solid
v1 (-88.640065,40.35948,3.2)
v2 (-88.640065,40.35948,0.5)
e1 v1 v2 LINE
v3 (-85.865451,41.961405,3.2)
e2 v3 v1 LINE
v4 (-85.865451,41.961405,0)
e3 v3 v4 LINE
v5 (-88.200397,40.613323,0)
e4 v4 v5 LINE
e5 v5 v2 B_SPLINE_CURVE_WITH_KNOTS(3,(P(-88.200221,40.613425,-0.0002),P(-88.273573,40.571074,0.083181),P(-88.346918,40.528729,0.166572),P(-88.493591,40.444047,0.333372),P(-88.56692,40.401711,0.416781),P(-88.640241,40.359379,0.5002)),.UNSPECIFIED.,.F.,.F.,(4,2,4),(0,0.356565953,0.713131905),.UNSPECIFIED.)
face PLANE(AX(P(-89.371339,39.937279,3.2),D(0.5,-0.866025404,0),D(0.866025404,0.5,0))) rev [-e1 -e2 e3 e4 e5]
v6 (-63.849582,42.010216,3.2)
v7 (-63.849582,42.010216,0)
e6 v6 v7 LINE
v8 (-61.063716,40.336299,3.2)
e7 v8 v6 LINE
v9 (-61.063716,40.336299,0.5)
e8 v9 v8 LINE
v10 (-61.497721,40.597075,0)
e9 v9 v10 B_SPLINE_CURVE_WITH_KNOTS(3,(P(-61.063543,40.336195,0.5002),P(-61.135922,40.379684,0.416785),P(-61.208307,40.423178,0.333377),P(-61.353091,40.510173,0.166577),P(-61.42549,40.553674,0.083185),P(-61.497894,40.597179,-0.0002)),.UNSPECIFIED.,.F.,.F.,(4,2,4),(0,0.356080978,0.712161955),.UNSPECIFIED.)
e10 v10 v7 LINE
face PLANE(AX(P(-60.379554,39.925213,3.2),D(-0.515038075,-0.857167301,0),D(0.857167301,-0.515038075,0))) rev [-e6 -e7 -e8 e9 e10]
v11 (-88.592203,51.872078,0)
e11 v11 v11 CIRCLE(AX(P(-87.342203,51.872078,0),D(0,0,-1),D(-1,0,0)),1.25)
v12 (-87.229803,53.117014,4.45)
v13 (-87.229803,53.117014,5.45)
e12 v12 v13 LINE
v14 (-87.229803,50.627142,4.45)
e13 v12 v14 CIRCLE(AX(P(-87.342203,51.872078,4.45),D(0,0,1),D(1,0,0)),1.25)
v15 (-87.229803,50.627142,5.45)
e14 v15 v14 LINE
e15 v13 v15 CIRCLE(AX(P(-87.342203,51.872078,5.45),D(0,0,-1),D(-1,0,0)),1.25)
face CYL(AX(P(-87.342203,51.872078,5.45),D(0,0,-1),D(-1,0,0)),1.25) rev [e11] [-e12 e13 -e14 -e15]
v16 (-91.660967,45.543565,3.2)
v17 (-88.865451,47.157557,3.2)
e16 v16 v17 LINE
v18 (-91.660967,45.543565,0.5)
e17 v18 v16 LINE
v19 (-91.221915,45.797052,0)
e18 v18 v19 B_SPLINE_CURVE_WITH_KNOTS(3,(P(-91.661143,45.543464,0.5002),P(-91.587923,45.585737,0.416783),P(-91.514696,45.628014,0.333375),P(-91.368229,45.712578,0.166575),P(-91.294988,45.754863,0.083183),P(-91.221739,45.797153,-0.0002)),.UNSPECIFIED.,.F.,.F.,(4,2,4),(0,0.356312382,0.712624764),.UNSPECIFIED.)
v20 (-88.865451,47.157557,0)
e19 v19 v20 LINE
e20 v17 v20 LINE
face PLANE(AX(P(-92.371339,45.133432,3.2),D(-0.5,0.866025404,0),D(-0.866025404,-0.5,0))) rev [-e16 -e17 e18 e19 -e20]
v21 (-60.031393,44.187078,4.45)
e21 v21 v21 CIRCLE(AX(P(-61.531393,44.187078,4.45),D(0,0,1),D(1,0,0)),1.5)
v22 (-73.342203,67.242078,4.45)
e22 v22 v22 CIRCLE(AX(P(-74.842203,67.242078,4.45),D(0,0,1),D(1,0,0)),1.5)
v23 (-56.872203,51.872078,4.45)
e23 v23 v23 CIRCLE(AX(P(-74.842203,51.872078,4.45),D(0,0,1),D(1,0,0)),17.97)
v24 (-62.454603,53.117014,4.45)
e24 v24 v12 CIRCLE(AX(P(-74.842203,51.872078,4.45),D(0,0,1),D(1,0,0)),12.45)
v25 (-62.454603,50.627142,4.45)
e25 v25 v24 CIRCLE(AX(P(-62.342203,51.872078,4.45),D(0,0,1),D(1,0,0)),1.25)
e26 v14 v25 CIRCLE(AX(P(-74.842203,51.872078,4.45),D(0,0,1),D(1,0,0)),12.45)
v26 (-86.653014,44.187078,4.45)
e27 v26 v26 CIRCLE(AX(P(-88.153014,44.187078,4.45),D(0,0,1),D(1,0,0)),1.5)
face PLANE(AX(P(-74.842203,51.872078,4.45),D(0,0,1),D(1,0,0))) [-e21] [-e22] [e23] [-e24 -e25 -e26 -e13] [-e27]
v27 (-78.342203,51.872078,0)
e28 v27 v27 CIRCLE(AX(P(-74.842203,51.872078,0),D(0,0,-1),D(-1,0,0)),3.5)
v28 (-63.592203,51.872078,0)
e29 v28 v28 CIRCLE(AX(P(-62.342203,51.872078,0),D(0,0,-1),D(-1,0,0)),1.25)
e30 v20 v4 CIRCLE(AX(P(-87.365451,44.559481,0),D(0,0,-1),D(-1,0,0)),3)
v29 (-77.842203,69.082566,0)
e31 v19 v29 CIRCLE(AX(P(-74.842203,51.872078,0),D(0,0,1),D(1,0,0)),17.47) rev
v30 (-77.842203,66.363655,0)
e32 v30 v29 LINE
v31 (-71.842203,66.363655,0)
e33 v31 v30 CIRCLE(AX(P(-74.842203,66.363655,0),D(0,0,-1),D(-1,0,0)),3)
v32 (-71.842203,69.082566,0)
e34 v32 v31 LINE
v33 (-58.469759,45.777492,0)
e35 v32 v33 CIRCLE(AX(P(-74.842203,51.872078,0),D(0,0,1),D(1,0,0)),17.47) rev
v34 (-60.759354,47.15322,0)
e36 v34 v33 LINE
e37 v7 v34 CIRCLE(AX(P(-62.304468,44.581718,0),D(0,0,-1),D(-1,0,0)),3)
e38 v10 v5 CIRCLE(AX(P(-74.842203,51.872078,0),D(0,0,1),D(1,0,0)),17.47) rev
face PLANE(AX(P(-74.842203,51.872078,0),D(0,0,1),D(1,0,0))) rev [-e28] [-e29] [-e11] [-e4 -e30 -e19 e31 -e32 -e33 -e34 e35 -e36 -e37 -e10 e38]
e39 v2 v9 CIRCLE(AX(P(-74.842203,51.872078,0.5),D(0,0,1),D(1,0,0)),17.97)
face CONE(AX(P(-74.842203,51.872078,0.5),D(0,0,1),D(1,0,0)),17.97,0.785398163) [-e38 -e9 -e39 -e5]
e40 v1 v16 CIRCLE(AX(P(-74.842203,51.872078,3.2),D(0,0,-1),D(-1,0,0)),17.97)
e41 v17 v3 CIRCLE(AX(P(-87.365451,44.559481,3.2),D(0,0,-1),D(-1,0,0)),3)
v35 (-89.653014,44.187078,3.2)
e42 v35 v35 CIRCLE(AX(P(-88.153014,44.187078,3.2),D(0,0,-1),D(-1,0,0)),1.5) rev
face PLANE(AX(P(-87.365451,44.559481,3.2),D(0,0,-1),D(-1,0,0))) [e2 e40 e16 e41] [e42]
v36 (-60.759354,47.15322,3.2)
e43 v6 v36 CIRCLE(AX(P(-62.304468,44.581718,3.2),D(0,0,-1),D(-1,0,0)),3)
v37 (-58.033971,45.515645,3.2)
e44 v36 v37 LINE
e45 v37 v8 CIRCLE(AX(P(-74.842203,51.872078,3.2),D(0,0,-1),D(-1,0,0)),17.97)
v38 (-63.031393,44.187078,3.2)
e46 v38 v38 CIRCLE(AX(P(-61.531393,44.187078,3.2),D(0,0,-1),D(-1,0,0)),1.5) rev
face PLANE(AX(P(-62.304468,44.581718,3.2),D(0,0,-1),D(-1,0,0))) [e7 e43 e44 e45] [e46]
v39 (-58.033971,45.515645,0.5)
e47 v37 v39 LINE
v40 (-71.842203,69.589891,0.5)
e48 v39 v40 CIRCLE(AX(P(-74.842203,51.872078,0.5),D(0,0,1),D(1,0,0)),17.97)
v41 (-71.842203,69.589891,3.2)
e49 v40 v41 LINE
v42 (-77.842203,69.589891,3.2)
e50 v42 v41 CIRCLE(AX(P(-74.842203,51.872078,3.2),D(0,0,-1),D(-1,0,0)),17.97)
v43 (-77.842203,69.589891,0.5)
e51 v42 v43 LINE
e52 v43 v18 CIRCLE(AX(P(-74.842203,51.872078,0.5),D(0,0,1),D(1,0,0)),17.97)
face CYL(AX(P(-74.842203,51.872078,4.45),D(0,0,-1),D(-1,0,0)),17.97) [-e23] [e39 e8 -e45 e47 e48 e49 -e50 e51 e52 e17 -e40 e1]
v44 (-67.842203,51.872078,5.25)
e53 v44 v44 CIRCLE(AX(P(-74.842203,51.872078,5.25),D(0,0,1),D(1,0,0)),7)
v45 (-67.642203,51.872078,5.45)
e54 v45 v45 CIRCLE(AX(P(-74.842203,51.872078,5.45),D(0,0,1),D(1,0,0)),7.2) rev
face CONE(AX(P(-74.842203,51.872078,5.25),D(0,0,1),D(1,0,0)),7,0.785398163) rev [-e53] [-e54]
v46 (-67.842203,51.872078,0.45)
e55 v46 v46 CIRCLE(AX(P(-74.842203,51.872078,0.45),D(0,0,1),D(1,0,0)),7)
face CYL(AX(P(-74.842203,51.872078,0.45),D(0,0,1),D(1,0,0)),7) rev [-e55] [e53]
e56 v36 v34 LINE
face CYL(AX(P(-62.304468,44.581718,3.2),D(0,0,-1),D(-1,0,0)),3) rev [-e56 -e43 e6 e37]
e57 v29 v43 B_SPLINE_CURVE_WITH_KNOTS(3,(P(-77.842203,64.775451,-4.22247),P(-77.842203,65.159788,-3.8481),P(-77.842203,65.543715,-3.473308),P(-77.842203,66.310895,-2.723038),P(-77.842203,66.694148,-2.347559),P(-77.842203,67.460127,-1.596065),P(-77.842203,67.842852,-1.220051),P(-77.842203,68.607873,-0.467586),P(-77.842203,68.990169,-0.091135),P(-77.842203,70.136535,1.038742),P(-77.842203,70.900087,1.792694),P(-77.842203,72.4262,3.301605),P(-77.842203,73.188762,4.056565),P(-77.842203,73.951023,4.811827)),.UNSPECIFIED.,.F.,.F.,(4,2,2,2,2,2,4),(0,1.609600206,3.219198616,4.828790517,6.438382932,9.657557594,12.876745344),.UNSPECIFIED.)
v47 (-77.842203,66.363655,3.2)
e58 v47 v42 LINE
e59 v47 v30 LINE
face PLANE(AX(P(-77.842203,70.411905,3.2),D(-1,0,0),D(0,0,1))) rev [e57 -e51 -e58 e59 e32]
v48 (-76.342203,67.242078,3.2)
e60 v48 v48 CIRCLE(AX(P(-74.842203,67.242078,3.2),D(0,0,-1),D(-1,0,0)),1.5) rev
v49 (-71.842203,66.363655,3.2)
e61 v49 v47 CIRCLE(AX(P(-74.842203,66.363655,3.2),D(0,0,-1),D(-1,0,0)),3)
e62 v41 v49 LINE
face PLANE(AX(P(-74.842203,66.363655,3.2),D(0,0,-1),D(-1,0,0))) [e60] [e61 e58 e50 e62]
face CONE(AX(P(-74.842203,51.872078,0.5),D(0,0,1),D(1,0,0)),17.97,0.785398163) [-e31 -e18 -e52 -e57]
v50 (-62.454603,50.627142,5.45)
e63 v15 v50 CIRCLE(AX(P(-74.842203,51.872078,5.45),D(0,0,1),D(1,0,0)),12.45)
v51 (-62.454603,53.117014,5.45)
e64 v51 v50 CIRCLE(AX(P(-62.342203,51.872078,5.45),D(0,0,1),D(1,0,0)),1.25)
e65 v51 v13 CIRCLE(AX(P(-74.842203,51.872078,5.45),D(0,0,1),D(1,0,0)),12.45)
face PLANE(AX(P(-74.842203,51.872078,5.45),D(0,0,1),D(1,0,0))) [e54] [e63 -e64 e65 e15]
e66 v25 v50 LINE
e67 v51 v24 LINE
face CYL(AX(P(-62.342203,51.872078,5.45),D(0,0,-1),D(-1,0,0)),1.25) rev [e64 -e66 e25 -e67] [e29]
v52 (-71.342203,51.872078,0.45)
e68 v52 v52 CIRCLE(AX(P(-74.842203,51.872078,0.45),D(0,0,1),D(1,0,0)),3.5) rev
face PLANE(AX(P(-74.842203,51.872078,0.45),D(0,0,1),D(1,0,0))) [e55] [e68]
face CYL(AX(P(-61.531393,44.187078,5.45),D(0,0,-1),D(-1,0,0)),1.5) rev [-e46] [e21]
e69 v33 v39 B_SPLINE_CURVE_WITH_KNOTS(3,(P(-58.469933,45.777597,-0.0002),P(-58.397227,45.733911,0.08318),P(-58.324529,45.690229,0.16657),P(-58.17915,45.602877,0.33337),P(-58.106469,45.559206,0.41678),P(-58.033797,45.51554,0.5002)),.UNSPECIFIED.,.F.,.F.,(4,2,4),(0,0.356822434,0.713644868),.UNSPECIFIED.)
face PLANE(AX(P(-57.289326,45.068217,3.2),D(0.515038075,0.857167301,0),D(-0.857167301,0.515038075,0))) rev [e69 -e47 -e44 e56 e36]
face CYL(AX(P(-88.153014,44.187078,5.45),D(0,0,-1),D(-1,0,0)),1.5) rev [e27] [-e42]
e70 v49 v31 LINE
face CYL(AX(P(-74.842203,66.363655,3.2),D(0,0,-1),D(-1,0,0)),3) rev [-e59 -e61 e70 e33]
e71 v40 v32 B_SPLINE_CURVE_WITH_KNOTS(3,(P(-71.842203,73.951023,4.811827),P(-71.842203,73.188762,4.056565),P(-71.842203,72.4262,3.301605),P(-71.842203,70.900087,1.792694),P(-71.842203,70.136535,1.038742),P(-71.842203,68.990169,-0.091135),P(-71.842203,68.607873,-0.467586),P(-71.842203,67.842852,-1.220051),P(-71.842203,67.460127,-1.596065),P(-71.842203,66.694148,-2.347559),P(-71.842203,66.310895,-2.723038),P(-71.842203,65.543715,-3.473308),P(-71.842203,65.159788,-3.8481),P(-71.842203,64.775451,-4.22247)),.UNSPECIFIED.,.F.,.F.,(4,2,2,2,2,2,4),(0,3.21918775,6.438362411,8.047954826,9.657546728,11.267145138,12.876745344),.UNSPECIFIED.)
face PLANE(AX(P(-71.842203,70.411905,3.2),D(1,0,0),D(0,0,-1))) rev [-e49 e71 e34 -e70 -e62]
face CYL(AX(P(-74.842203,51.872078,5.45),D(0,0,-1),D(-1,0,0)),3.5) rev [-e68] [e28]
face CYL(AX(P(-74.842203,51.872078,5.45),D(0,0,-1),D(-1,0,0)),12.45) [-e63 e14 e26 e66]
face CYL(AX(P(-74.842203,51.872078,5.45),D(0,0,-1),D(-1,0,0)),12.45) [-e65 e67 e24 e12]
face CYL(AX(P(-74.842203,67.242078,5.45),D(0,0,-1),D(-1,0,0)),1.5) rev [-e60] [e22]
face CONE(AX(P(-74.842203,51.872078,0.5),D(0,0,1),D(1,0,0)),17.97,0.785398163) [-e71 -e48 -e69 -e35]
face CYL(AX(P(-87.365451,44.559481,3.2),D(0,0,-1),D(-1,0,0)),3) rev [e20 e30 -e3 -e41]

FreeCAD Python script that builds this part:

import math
import FreeCAD as App
import Part
import Sketcher

V = App.Vector
Q = App.Units.Quantity


def edges_at(feature, points):
    """Names of the edges that pass closest to the given points."""
    edges = feature.Shape.Edges
    near = lambda p: min(range(len(edges)), key=lambda i: edges[i].distToShape(Part.Vertex(*p))[0])
    return sorted({f"Edge{near(p) + 1}" for p in points})

doc = App.newDocument("Part")
body = doc.addObject("PartDesign::Body", "Body")

# Sketch on XY plane
sketch1 = doc.addObject("Sketcher::SketchObject", "Sketch")
body.addObject(sketch1)
sketch1.AttachmentSupport = (doc.XY_Plane, [""])
sketch1.MapMode = "FlatFace"
sketch1.addGeometry(Part.Circle(V(-75, 52, 0), V(0, 0, 1), 18), False)
sketch1.addConstraint([
    Sketcher.Constraint("Diameter", 0, 35.94),
    Sketcher.Constraint("DistanceX", 0, 3, -1, 1, 74.842203),
    Sketcher.Constraint("DistanceY", -1, 1, 0, 3, 51.872078),
])
pad1 = doc.addObject("PartDesign::Pad", "Pad")
body.addObject(pad1)
pad1.Profile = sketch1
pad1.Length = 4.45

# Sketch on XY plane
sketch2 = doc.addObject("Sketcher::SketchObject", "Sketch001")
body.addObject(sketch2)
sketch2.AttachmentSupport = (doc.XY_Plane, [""])
sketch2.MapMode = "FlatFace"
sketch2.AttachmentOffset = App.Placement(V(0, 0, 4.45), App.Rotation())
sketch2.addGeometry(Part.Circle(V(-75, 52, 0), V(0, 0, 1), 12), False)
sketch2.addConstraint([
    Sketcher.Constraint("Diameter", 0, 24.9),
    Sketcher.Constraint("DistanceX", 0, 3, -1, 1, 74.842203),
    Sketcher.Constraint("DistanceY", -1, 1, 0, 3, 51.872078),
])
pad2 = doc.addObject("PartDesign::Pad", "Pad001")
body.addObject(pad2)
pad2.Profile = sketch2
pad2.Length = 1
doc.recompute()

chamfer = doc.addObject("PartDesign::Chamfer", "Chamfer")
body.addObject(chamfer)
chamfer.Base = (pad2, edges_at(pad2, [(-92.812, 51.872, 0)]))
chamfer.Size = 0.5

# Sketch on XY plane
sketch3 = doc.addObject("Sketcher::SketchObject", "Sketch002")
body.addObject(sketch3)
sketch3.AttachmentSupport = (doc.XY_Plane, [""])
sketch3.MapMode = "FlatFace"
sketch3.addGeometry([
    Part.Circle(V(-74.8, 67.2, 0), V(0, 0, 1), 1.5),
    Part.Circle(V(-61.5, 44.2, 0), V(0, 0, 1), 1.5),
    Part.Circle(V(-88.2, 44.2, 0), V(0, 0, 1), 1.5),
], False)
sketch3.addConstraint([
    Sketcher.Constraint("Equal", 0, 1),
    Sketcher.Constraint("Equal", 1, 2),
    Sketcher.Constraint("Horizontal", 1, 3, 2, 3),
    Sketcher.Constraint("Diameter", 0, 3.0),
    Sketcher.Constraint("DistanceY", 1, 3, 0, 3, 23.055),
    Sketcher.Constraint("DistanceX", 0, 3, 1, 3, 13.31081),
    Sketcher.Constraint("DistanceX", 2, 3, 1, 3, 26.621621),
    Sketcher.Constraint("DistanceX", 0, 3, -1, 1, 74.842203),
    Sketcher.Constraint("DistanceY", -1, 1, 0, 3, 67.242078),
])
pocket1 = doc.addObject("PartDesign::Pocket", "Pocket")
body.addObject(pocket1)
pocket1.Profile = sketch3
pocket1.Type = "ThroughAll"
pocket1.Reversed = True

# Sketch on XY plane
sketch4 = doc.addObject("Sketcher::SketchObject", "Sketch003")
body.addObject(sketch4)
sketch4.AttachmentSupport = (doc.XY_Plane, [""])
sketch4.MapMode = "FlatFace"
sketch4.addGeometry(Part.Circle(V(-74.8, 51.9, 0), V(0, 0, 1), 3.5), False)
sketch4.addConstraint([
    Sketcher.Constraint("Diameter", 0, 7.0),
    Sketcher.Constraint("DistanceX", 0, 3, -1, 1, 74.842203),
    Sketcher.Constraint("DistanceY", -1, 1, 0, 3, 51.872078),
])
pocket2 = doc.addObject("PartDesign::Pocket", "Pocket001")
body.addObject(pocket2)
pocket2.Profile = sketch4
pocket2.Type = "ThroughAll"
pocket2.Reversed = True

# Sketch on XY plane
sketch5 = doc.addObject("Sketcher::SketchObject", "Sketch004")
body.addObject(sketch5)
sketch5.AttachmentSupport = (doc.XY_Plane, [""])
sketch5.MapMode = "FlatFace"
sketch5.AttachmentOffset = App.Placement(V(0, 0, 5.45), App.Rotation())
sketch5.addGeometry(Part.Circle(V(-75, 52, 0), V(0, 0, 1), 7), False)
sketch5.addConstraint([
    Sketcher.Constraint("Diameter", 0, 14.0),
    Sketcher.Constraint("DistanceX", 0, 3, -1, 1, 74.842203),
    Sketcher.Constraint("DistanceY", -1, 1, 0, 3, 51.872078),
])
pocket3 = doc.addObject("PartDesign::Pocket", "Pocket002")
body.addObject(pocket3)
pocket3.Profile = sketch5
pocket3.Length = 5

# Sketch on XY plane
sketch6 = doc.addObject("Sketcher::SketchObject", "Sketch005")
body.addObject(sketch6)
sketch6.AttachmentSupport = (doc.XY_Plane, [""])
sketch6.MapMode = "FlatFace"
sketch6.addGeometry([
    Part.LineSegment(V(-71.8, 70.4, 0), V(-71.8, 66.4, 0)),  # 0
    Part.ArcOfCircle(Part.Circle(V(-74.8, 66.4, 0), V(0, 0, 1), 3), math.radians(180), math.radians(360)),  # 1
    Part.LineSegment(V(-77.8, 66.4, 0), V(-77.8, 70.4, 0)),  # 2
    Part.LineSegment(V(-77.8, 70.4, 0), V(-71.8, 70.4, 0)),  # 3
    Part.LineSegment(V(-60.4, 39.9, 0), V(-63.8, 42, 0)),  # 4
    Part.ArcOfCircle(Part.Circle(V(-62.3, 44.6, 0), V(0, 0, 1), 3), math.radians(59), math.radians(239)),  # 5
    Part.LineSegment(V(-60.8, 47.2, 0), V(-57.3, 45.1, 0)),  # 6
    Part.LineSegment(V(-57.3, 45.1, 0), V(-60.4, 39.9, 0)),  # 7
    Part.LineSegment(V(-92.4, 45.1, 0), V(-88.9, 47.2, 0)),  # 8
    Part.ArcOfCircle(Part.Circle(V(-87.4, 44.6, 0), V(0, 0, 1), 3), math.radians(-60), math.radians(120)),  # 9
    Part.LineSegment(V(-85.9, 42, 0), V(-89.4, 39.9, 0)),  # 10
    Part.LineSegment(V(-89.4, 39.9, 0), V(-92.4, 45.1, 0)),  # 11
], False)
sketch6.addConstraint([
    Sketcher.Constraint("Tangent", 0, 2, 1, 2),
    Sketcher.Constraint("Tangent", 1, 1, 2, 1),
    Sketcher.Constraint("Coincident", 2, 2, 3, 1),
    Sketcher.Constraint("Coincident", 3, 2, 0, 1),
    Sketcher.Constraint("Tangent", 4, 2, 5, 2),
    Sketcher.Constraint("Tangent", 5, 1, 6, 1),
    Sketcher.Constraint("Coincident", 6, 2, 7, 1),
    Sketcher.Constraint("Coincident", 7, 2, 4, 1),
    Sketcher.Constraint("Tangent", 8, 2, 9, 2),
    Sketcher.Constraint("Tangent", 9, 1, 10, 1),
    Sketcher.Constraint("Coincident", 10, 2, 11, 1),
    Sketcher.Constraint("Coincident", 11, 2, 8, 1),
    Sketcher.Constraint("Vertical", 0),
    Sketcher.Constraint("Vertical", 2),
    Sketcher.Constraint("Horizontal", 3),
    Sketcher.Constraint("Equal", 1, 5),
    Sketcher.Constraint("Equal", 5, 9),
    Sketcher.Constraint("Parallel", 4, 6),
    Sketcher.Constraint("Perpendicular", 6, 7),
    Sketcher.Constraint("Parallel", 8, 10),
    Sketcher.Constraint("Perpendicular", 10, 11),
    Sketcher.Constraint("Equal", 6, 8),
    Sketcher.Constraint("Radius", 1, 3.0),
    Sketcher.Constraint("Angle", 4, Q("149 deg")),
    Sketcher.Constraint("Angle", 8, Q("30 deg")),
    Sketcher.Constraint("DistanceY", 4, 2, 6, 2, 3.058001),
    Sketcher.Constraint("DistanceY", 0, 2, 0, 1, 4.048251),
    Sketcher.Constraint("DistanceX", 5, 3, -1, 1, 62.304468),
    Sketcher.Constraint("DistanceX", 9, 3, -1, 1, 87.365451),
    Sketcher.Constraint("DistanceY", -1, 1, 9, 3, 44.559481),
    Sketcher.Constraint("DistanceY", -1, 1, 5, 1, 47.15322),
    Sketcher.Constraint("DistanceX", 0, 2, 4, 2, 7.992621),
    Sketcher.Constraint("DistanceY", 4, 2, 0, 2, 24.353438),
])
pocket4 = doc.addObject("PartDesign::Pocket", "Pocket003")
body.addObject(pocket4)
pocket4.Profile = sketch6
pocket4.Length = 3.2
pocket4.Reversed = True
doc.recompute()

chamfer2 = doc.addObject("PartDesign::Chamfer", "Chamfer001")
body.addObject(chamfer2)
chamfer2.Base = (pocket4, edges_at(pocket4, [(-81.842, 51.872, 5.45)]))
chamfer2.Size = 0.2

# Sketch on XY plane
sketch7 = doc.addObject("Sketcher::SketchObject", "Sketch006")
body.addObject(sketch7)
sketch7.AttachmentSupport = (doc.XY_Plane, [""])
sketch7.MapMode = "FlatFace"
sketch7.addGeometry([
    Part.Circle(V(-62.3, 51.9, 0), V(0, 0, 1), 1.2),
    Part.Circle(V(-87.3, 51.9, 0), V(0, 0, 1), 1.2),
], False)
sketch7.addConstraint([
    Sketcher.Constraint("Equal", 0, 1),
    Sketcher.Constraint("Horizontal", 0, 3, 1, 3),
    Sketcher.Constraint("Diameter", 0, 2.5),
    Sketcher.Constraint("DistanceX", 1, 3, 0, 3, 25.0),
    Sketcher.Constraint("DistanceX", 0, 3, -1, 1, 62.342203),
    Sketcher.Constraint("DistanceY", -1, 1, 0, 3, 51.872078),
])
pocket5 = doc.addObject("PartDesign::Pocket", "Pocket004")
body.addObject(pocket5)
pocket5.Profile = sketch7
pocket5.Type = "ThroughAll"
pocket5.Reversed = True

doc.recompute()
